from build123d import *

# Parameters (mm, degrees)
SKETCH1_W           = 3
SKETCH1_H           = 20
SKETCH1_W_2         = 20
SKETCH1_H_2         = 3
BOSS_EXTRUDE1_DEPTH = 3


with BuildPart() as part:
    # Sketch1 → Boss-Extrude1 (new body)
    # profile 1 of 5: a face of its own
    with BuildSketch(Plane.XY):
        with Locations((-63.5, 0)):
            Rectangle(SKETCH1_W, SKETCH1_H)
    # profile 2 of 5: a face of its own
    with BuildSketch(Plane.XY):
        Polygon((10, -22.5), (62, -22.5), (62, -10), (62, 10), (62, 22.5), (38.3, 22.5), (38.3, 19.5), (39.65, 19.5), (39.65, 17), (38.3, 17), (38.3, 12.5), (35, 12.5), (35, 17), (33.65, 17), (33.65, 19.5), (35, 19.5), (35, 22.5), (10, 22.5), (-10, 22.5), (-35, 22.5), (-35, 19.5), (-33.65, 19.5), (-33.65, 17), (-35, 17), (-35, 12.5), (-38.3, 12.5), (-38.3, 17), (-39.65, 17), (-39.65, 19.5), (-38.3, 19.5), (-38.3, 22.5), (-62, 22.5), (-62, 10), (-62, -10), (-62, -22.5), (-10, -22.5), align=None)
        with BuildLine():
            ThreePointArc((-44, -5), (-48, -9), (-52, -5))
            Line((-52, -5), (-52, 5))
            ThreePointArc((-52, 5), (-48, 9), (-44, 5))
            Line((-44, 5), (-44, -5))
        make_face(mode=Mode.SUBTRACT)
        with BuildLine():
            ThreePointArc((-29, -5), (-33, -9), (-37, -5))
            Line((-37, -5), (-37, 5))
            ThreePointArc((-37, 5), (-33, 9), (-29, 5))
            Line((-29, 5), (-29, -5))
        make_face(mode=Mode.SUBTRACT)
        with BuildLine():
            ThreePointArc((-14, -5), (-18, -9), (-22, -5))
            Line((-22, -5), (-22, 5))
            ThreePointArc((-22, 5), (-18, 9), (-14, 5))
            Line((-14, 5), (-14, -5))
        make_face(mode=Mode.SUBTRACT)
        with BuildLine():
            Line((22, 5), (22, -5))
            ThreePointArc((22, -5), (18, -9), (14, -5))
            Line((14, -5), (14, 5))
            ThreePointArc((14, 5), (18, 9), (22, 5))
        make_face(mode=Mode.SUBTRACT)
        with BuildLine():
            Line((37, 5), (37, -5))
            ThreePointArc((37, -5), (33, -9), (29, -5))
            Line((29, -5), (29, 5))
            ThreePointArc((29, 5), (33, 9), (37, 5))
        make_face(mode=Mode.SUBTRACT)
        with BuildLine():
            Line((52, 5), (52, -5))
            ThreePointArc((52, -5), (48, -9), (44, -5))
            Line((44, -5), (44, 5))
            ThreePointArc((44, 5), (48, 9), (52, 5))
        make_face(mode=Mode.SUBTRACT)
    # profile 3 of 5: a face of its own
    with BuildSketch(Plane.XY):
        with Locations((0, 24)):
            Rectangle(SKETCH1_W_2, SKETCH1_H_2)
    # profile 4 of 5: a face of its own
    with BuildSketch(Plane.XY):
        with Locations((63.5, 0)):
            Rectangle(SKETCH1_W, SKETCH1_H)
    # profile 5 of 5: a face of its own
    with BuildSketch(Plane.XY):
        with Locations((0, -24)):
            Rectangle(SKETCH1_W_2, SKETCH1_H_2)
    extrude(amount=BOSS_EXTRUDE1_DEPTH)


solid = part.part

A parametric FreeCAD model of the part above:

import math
import FreeCAD as App
import Part
import Sketcher

V = App.Vector


def add_polygon(sketch, points):
    """Adds a closed chain of lines whose ends are joined by coincident constraints."""
    first, n = sketch.GeometryCount, len(points)
    for a, b in zip(points, points[1:] + points[:1]):
        sketch.addGeometry(Part.LineSegment(App.Vector(*a, 0), App.Vector(*b, 0)), False)
    for i in range(n):
        sketch.addConstraint(Sketcher.Constraint("Coincident", first + i, 2, first + (i + 1) % n, 1))

doc = App.newDocument("Part")
body = doc.addObject("PartDesign::Body", "Body")

sketch1 = body.newObject("Sketcher::SketchObject", "Sketch")
sketch1.AttachmentSupport = (doc.getObject("XY_Plane"), [""])
sketch1.MapMode = "FlatFace"
add_polygon(sketch1, [(-65, 10), (-65, -10), (-62, -10), (-62, -22.5), (-10, -22.5), (-10, -25.5), (10, -25.5), (10, -22.5), (62, -22.5), (62, -10), (65, -10), (65, 10), (62, 10), (62, 22.5), (38.3, 22.5), (38.3, 19.5), (39.65, 19.5), (39.65, 17), (38.3, 17), (38.3, 12.5), (35, 12.5), (35, 17), (33.65, 17), (33.65, 19.5), (35, 19.5), (35, 22.5), (10, 22.5), (10, 25.5), (-10, 25.5), (-10, 22.5), (-35, 22.5), (-35, 19.5), (-33.65, 19.5), (-33.65, 17), (-35, 17), (-35, 12.5), (-38.3, 12.5), (-38.3, 17), (-39.65, 17), (-39.65, 19.5), (-38.3, 19.5), (-38.3, 22.5), (-62, 22.5), (-62, 10)])
sketch1.addGeometry(Part.LineSegment(V(52, 5, 0), V(52, -5, 0)), False)
sketch1.addGeometry(Part.ArcOfCircle(Part.Circle(V(48, -5, 0), V(0, 0, 1), 4), math.radians(180), math.radians(360)), False)
sketch1.addGeometry(Part.LineSegment(V(44, -5, 0), V(44, 5, 0)), False)
sketch1.addGeometry(Part.ArcOfCircle(Part.Circle(V(48, 5, 0), V(0, 0, 1), 4), math.radians(0), math.radians(180)), False)
sketch1.addGeometry(Part.LineSegment(V(-44, 5, 0), V(-44, -5, 0)), False)
sketch1.addGeometry(Part.ArcOfCircle(Part.Circle(V(-48, -5, 0), V(0, 0, 1), 4), math.radians(180), math.radians(360)), False)
sketch1.addGeometry(Part.LineSegment(V(-52, -5, 0), V(-52, 5, 0)), False)
sketch1.addGeometry(Part.ArcOfCircle(Part.Circle(V(-48, 5, 0), V(0, 0, 1), 4), math.radians(0), math.radians(180)), False)
sketch1.addGeometry(Part.LineSegment(V(-29, 5, 0), V(-29, -5, 0)), False)
sketch1.addGeometry(Part.ArcOfCircle(Part.Circle(V(-33, -5, 0), V(0, 0, 1), 4), math.radians(180), math.radians(360)), False)
sketch1.addGeometry(Part.LineSegment(V(-37, -5, 0), V(-37, 5, 0)), False)
sketch1.addGeometry(Part.ArcOfCircle(Part.Circle(V(-33, 5, 0), V(0, 0, 1), 4), math.radians(0), math.radians(180)), False)
sketch1.addGeometry(Part.LineSegment(V(-14, 5, 0), V(-14, -5, 0)), False)
sketch1.addGeometry(Part.ArcOfCircle(Part.Circle(V(-18, -5, 0), V(0, 0, 1), 4), math.radians(180), math.radians(360)), False)
sketch1.addGeometry(Part.LineSegment(V(-22, -5, 0), V(-22, 5, 0)), False)
sketch1.addGeometry(Part.ArcOfCircle(Part.Circle(V(-18, 5, 0), V(0, 0, 1), 4), math.radians(0), math.radians(180)), False)
sketch1.addGeometry(Part.ArcOfCircle(Part.Circle(V(18, 5, 0), V(0, 0, 1), 4), math.radians(0), math.radians(180)), False)
sketch1.addGeometry(Part.LineSegment(V(22, 5, 0), V(22, -5, 0)), False)
sketch1.addGeometry(Part.ArcOfCircle(Part.Circle(V(18, -5, 0), V(0, 0, 1), 4), math.radians(180), math.radians(360)), False)
sketch1.addGeometry(Part.LineSegment(V(14, -5, 0), V(14, 5, 0)), False)
sketch1.addGeometry(Part.ArcOfCircle(Part.Circle(V(33, 5, 0), V(0, 0, 1), 4), math.radians(0), math.radians(180)), False)
sketch1.addGeometry(Part.LineSegment(V(37, 5, 0), V(37, -5, 0)), False)
sketch1.addGeometry(Part.ArcOfCircle(Part.Circle(V(33, -5, 0), V(0, 0, 1), 4), math.radians(180), math.radians(360)), False)
sketch1.addGeometry(Part.LineSegment(V(29, -5, 0), V(29, 5, 0)), False)
sketch1.addConstraint(Sketcher.Constraint("Tangent", 44, 2, 45, 2))
sketch1.addConstraint(Sketcher.Constraint("Tangent", 45, 1, 46, 1))
sketch1.addConstraint(Sketcher.Constraint("Tangent", 46, 2, 47, 2))
sketch1.addConstraint(Sketcher.Constraint("Tangent", 47, 1, 44, 1))
sketch1.addConstraint(Sketcher.Constraint("Tangent", 48, 2, 49, 2))
sketch1.addConstraint(Sketcher.Constraint("Tangent", 49, 1, 50, 1))
sketch1.addConstraint(Sketcher.Constraint("Tangent", 50, 2, 51, 2))
sketch1.addConstraint(Sketcher.Constraint("Tangent", 51, 1, 48, 1))
sketch1.addConstraint(Sketcher.Constraint("Tangent", 52, 2, 53, 2))
sketch1.addConstraint(Sketcher.Constraint("Tangent", 53, 1, 54, 1))
sketch1.addConstraint(Sketcher.Constraint("Tangent", 54, 2, 55, 2))
sketch1.addConstraint(Sketcher.Constraint("Tangent", 55, 1, 52, 1))
sketch1.addConstraint(Sketcher.Constraint("Tangent", 56, 2, 57, 2))
sketch1.addConstraint(Sketcher.Constraint("Tangent", 57, 1, 58, 1))
sketch1.addConstraint(Sketcher.Constraint("Tangent", 58, 2, 59, 2))
sketch1.addConstraint(Sketcher.Constraint("Tangent", 59, 1, 56, 1))
sketch1.addConstraint(Sketcher.Constraint("Tangent", 60, 1, 61, 1))
sketch1.addConstraint(Sketcher.Constraint("Tangent", 61, 2, 62, 2))
sketch1.addConstraint(Sketcher.Constraint("Tangent", 62, 1, 63, 1))
sketch1.addConstraint(Sketcher.Constraint("Tangent", 63, 2, 60, 2))
sketch1.addConstraint(Sketcher.Constraint("Tangent", 64, 1, 65, 1))
sketch1.addConstraint(Sketcher.Constraint("Tangent", 65, 2, 66, 2))
sketch1.addConstraint(Sketcher.Constraint("Tangent", 66, 1, 67, 1))
sketch1.addConstraint(Sketcher.Constraint("Tangent", 67, 2, 64, 2))
sketch1.addConstraint(Sketcher.Constraint("Vertical", 0))
sketch1.addConstraint(Sketcher.Constraint("Horizontal", 1))
sketch1.addConstraint(Sketcher.Constraint("Vertical", 2))
sketch1.addConstraint(Sketcher.Constraint("Horizontal", 3))
sketch1.addConstraint(Sketcher.Constraint("Vertical", 4))
sketch1.addConstraint(Sketcher.Constraint("Horizontal", 5))
sketch1.addConstraint(Sketcher.Constraint("Vertical", 6))
sketch1.addConstraint(Sketcher.Constraint("Horizontal", 7))
sketch1.addConstraint(Sketcher.Constraint("Vertical", 8))
sketch1.addConstraint(Sketcher.Constraint("Horizontal", 9))
sketch1.addConstraint(Sketcher.Constraint("Vertical", 10))
sketch1.addConstraint(Sketcher.Constraint("Horizontal", 11))
sketch1.addConstraint(Sketcher.Constraint("Vertical", 12))
sketch1.addConstraint(Sketcher.Constraint("Horizontal", 13))
sketch1.addConstraint(Sketcher.Constraint("Vertical", 14))
sketch1.addConstraint(Sketcher.Constraint("Horizontal", 15))
sketch1.addConstraint(Sketcher.Constraint("Vertical", 16))
sketch1.addConstraint(Sketcher.Constraint("Horizontal", 17))
sketch1.addConstraint(Sketcher.Constraint("Vertical", 18))
sketch1.addConstraint(Sketcher.Constraint("Horizontal", 19))
sketch1.addConstraint(Sketcher.Constraint("Vertical", 20))
sketch1.addConstraint(Sketcher.Constraint("Horizontal", 21))
sketch1.addConstraint(Sketcher.Constraint("Vertical", 22))
sketch1.addConstraint(Sketcher.Constraint("Horizontal", 23))
sketch1.addConstraint(Sketcher.Constraint("Vertical", 24))
sketch1.addConstraint(Sketcher.Constraint("Horizontal", 25))
sketch1.addConstraint(Sketcher.Constraint("Vertical", 26))
sketch1.addConstraint(Sketcher.Constraint("Horizontal", 27))
sketch1.addConstraint(Sketcher.Constraint("Vertical", 28))
sketch1.addConstraint(Sketcher.Constraint("Horizontal", 29))
sketch1.addConstraint(Sketcher.Constraint("Vertical", 30))
sketch1.addConstraint(Sketcher.Constraint("Horizontal", 31))
sketch1.addConstraint(Sketcher.Constraint("Vertical", 32))
sketch1.addConstraint(Sketcher.Constraint("Horizontal", 33))
sketch1.addConstraint(Sketcher.Constraint("Vertical", 34))
sketch1.addConstraint(Sketcher.Constraint("Horizontal", 35))
sketch1.addConstraint(Sketcher.Constraint("Vertical", 36))
sketch1.addConstraint(Sketcher.Constraint("Horizontal", 37))
sketch1.addConstraint(Sketcher.Constraint("Vertical", 38))
sketch1.addConstraint(Sketcher.Constraint("Horizontal", 39))
sketch1.addConstraint(Sketcher.Constraint("Vertical", 40))
sketch1.addConstraint(Sketcher.Constraint("Horizontal", 41))
sketch1.addConstraint(Sketcher.Constraint("Vertical", 42))
sketch1.addConstraint(Sketcher.Constraint("Horizontal", 43))
sketch1.addConstraint(Sketcher.Constraint("Vertical", 44))
sketch1.addConstraint(Sketcher.Constraint("Vertical", 46))
sketch1.addConstraint(Sketcher.Constraint("Vertical", 48))
sketch1.addConstraint(Sketcher.Constraint("Vertical", 50))
sketch1.addConstraint(Sketcher.Constraint("Vertical", 52))
sketch1.addConstraint(Sketcher.Constraint("Vertical", 54))
sketch1.addConstraint(Sketcher.Constraint("Vertical", 56))
sketch1.addConstraint(Sketcher.Constraint("Vertical", 58))
sketch1.addConstraint(Sketcher.Constraint("Vertical", 61))
sketch1.addConstraint(Sketcher.Constraint("Vertical", 63))
sketch1.addConstraint(Sketcher.Constraint("Vertical", 65))
sketch1.addConstraint(Sketcher.Constraint("Vertical", 67))
sketch1.addConstraint(Sketcher.Constraint("Equal", 47, 49))
sketch1.addConstraint(Sketcher.Constraint("Equal", 51, 53))
sketch1.addConstraint(Sketcher.Constraint("Equal", 55, 57))
sketch1.addConstraint(Sketcher.Constraint("Equal", 59, 60))
sketch1.addConstraint(Sketcher.Constraint("Equal", 62, 64))
sketch1.addConstraint(Sketcher.Constraint("Symmetric", 47, 3, 49, 3, -1, 1))
sketch1.addConstraint(Sketcher.Constraint("Symmetric", 57, 3, 60, 3, -1, 1))
sketch1.addConstraint(Sketcher.Constraint("Symmetric", 53, 3, 64, 3, -1, 1))
sketch1.addConstraint(Sketcher.Constraint("Symmetric", 0, 2, 10, 2, -1, 1))
sketch1.addConstraint(Sketcher.Constraint("Symmetric", 2, 2, 12, 2, -1, 1))
sketch1.addConstraint(Sketcher.Constraint("Symmetric", 3, 2, 25, 2, -1, 1))
sketch1.addConstraint(Sketcher.Constraint("Symmetric", 5, 2, 27, 2, -1, 1))
sketch1.addConstraint(Sketcher.Constraint("Symmetric", 7, 2, 41, 2, -1, 1))
sketch1.addConstraint(Sketcher.Constraint("Symmetric", 3, 2, 6, 2, -2))
sketch1.addConstraint(Sketcher.Constraint("Symmetric", 1, 2, 8, 2, -2))
sketch1.addConstraint(Sketcher.Constraint("Symmetric", 24, 2, 29, 2, -2))
sketch1.addConstraint(Sketcher.Constraint("Symmetric", 22, 2, 31, 2, -2))
sketch1.addConstraint(Sketcher.Constraint("Symmetric", 20, 2, 33, 2, -2))
sketch1.addConstraint(Sketcher.Constraint("Symmetric", 18, 2, 35, 2, -2))
sketch1.addConstraint(Sketcher.Constraint("Symmetric", 16, 2, 37, 2, -2))
sketch1.addConstraint(Sketcher.Constraint("Symmetric", 14, 2, 39, 2, -2))
sketch1.addConstraint(Sketcher.Constraint("Horizontal", 45, 3, 49, 3))
sketch1.addConstraint(Sketcher.Constraint("Horizontal", 47, 3, 51, 3))
sketch1.addConstraint(Sketcher.Constraint("Horizontal", 49, 3, 53, 3))
sketch1.addConstraint(Sketcher.Constraint("Horizontal", 51, 3, 55, 3))
sketch1.addConstraint(Sketcher.Constraint("Horizontal", 53, 3, 57, 3))
sketch1.addConstraint(Sketcher.Constraint("Horizontal", 55, 3, 59, 3))
sketch1.addConstraint(Sketcher.Constraint("Horizontal", 57, 3, 62, 3))
sketch1.addConstraint(Sketcher.Constraint("Horizontal", 62, 3, 66, 3))
sketch1.addConstraint(Sketcher.Constraint("Horizontal", 17, 2, 20, 2))
sketch1.addConstraint(Sketcher.Constraint("Horizontal", 15, 2, 22, 2))
sketch1.addConstraint(Sketcher.Constraint("Horizontal", 11, 2, 42, 2))
sketch1.addConstraint(Sketcher.Constraint("Vertical", 14, 2, 17, 2))
sketch1.addConstraint(Sketcher.Constraint("Vertical", 20, 2, 23, 2))
sketch1.addConstraint(Sketcher.Constraint("Equal", 17, 21))
sketch1.addConstraint(Sketcher.Constraint("Equal", 27, 0))
sketch1.addConstraint(Sketcher.Constraint("Equal", 43, 4))
sketch1.addConstraint(Sketcher.Constraint("Equal", 6, 14))
sketch1.addConstraint(Sketcher.Constraint("Radius", 45, 4.0))
sketch1.addConstraint(Sketcher.Constraint("DistanceX", 1, 1, 1, 2, 3.0))
sketch1.addConstraint(Sketcher.Constraint("DistanceX", 3, 1, 3, 2, 52.0))
sketch1.addConstraint(Sketcher.Constraint("DistanceX", 5, 1, 5, 2, 20.0))
sketch1.addConstraint(Sketcher.Constraint("DistanceX", 25, 2, 25, 1, 25.0))
sketch1.addConstraint(Sketcher.Constraint("DistanceY", 44, 2, 44, 1, 10.0))
sketch1.addConstraint(Sketcher.Constraint("DistanceX", 13, 2, 13, 1, 23.7))
sketch1.addConstraint(Sketcher.Constraint("DistanceY", 2, 2, 2, 1, 12.5))
sketch1.addConstraint(Sketcher.Constraint("DistanceY", 16, 2, 16, 1, 2.5))
sketch1.addConstraint(Sketcher.Constraint("DistanceY", 18, 2, 18, 1, 4.5))
sketch1.addConstraint(Sketcher.Constraint("DistanceX", -1, 1, 45, 3, 48.0))
sketch1.addConstraint(Sketcher.Constraint("DistanceX", 53, 3, -1, 1, 33.0))
sketch1.addConstraint(Sketcher.Constraint("DistanceX", 57, 3, -1, 1, 18.0))
sketch1.addConstraint(Sketcher.Constraint("DistanceX", 15, 1, 15, 2, 1.35))
pad1 = body.newObject("PartDesign::Pad", "Pad")
pad1.Profile = sketch1
pad1.Length = 3

doc.recompute()
